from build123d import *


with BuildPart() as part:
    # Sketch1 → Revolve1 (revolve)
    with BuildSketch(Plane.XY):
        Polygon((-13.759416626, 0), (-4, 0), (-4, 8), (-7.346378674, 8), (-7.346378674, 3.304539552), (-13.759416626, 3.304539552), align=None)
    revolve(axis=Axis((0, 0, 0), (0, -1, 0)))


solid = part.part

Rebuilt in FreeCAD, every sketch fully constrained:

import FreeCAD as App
import Part
import Sketcher

V = App.Vector
Q = App.Units.Quantity


def add_polygon(sketch, points):
    """Adds a closed chain of lines whose ends are joined by coincident constraints."""
    first, n = sketch.GeometryCount, len(points)
    for a, b in zip(points, points[1:] + points[:1]):
        sketch.addGeometry(Part.LineSegment(App.Vector(*a, 0), App.Vector(*b, 0)), False)
    for i in range(n):
        sketch.addConstraint(Sketcher.Constraint("Coincident", first + i, 2, first + (i + 1) % n, 1))

doc = App.newDocument("Part")
body = doc.addObject("PartDesign::Body", "Body")

# Sketch on XY plane
sketch1 = doc.addObject("Sketcher::SketchObject", "Sketch")
body.addObject(sketch1)
sketch1.AttachmentSupport = (doc.XY_Plane, [""])
sketch1.MapMode = "FlatFace"
add_polygon(sketch1, [(-13.759417, 0), (-4, 0), (-4, 8), (-7.346379, 8), (-7.346379, 3.30454), (-13.759417, 3.30454)])  # lines 0-5
sketch1.addConstraint([
    Sketcher.Constraint("Horizontal", 0),
    Sketcher.Constraint("Vertical", 1),
    Sketcher.Constraint("Horizontal", 2),
    Sketcher.Constraint("Vertical", 3),
    Sketcher.Constraint("Horizontal", 4),
    Sketcher.Constraint("Vertical", 5),
    Sketcher.Constraint("PointOnObject", 0, 2, -1),
    Sketcher.Constraint("DistanceY", 1, 1, 1, 2, Q("8 mm")),
    Sketcher.Constraint("DistanceX", 0, 2, -1, 1, Q("4 mm")),
    Sketcher.Constraint("DistanceX", 2, 2, 2, 1, Q("3.346379 mm")),
    Sketcher.Constraint("DistanceY", 3, 2, 3, 1, Q("4.69546 mm")),
    Sketcher.Constraint("DistanceX", 0, 1, 0, 2, Q("9.759417 mm")),
])
revolution = doc.addObject("PartDesign::Revolution", "Revolution")
body.addObject(revolution)
revolution.Profile = sketch1
revolution.ReferenceAxis = (sketch1, ["V_Axis"])
revolution.Angle = 360

doc.recompute()
